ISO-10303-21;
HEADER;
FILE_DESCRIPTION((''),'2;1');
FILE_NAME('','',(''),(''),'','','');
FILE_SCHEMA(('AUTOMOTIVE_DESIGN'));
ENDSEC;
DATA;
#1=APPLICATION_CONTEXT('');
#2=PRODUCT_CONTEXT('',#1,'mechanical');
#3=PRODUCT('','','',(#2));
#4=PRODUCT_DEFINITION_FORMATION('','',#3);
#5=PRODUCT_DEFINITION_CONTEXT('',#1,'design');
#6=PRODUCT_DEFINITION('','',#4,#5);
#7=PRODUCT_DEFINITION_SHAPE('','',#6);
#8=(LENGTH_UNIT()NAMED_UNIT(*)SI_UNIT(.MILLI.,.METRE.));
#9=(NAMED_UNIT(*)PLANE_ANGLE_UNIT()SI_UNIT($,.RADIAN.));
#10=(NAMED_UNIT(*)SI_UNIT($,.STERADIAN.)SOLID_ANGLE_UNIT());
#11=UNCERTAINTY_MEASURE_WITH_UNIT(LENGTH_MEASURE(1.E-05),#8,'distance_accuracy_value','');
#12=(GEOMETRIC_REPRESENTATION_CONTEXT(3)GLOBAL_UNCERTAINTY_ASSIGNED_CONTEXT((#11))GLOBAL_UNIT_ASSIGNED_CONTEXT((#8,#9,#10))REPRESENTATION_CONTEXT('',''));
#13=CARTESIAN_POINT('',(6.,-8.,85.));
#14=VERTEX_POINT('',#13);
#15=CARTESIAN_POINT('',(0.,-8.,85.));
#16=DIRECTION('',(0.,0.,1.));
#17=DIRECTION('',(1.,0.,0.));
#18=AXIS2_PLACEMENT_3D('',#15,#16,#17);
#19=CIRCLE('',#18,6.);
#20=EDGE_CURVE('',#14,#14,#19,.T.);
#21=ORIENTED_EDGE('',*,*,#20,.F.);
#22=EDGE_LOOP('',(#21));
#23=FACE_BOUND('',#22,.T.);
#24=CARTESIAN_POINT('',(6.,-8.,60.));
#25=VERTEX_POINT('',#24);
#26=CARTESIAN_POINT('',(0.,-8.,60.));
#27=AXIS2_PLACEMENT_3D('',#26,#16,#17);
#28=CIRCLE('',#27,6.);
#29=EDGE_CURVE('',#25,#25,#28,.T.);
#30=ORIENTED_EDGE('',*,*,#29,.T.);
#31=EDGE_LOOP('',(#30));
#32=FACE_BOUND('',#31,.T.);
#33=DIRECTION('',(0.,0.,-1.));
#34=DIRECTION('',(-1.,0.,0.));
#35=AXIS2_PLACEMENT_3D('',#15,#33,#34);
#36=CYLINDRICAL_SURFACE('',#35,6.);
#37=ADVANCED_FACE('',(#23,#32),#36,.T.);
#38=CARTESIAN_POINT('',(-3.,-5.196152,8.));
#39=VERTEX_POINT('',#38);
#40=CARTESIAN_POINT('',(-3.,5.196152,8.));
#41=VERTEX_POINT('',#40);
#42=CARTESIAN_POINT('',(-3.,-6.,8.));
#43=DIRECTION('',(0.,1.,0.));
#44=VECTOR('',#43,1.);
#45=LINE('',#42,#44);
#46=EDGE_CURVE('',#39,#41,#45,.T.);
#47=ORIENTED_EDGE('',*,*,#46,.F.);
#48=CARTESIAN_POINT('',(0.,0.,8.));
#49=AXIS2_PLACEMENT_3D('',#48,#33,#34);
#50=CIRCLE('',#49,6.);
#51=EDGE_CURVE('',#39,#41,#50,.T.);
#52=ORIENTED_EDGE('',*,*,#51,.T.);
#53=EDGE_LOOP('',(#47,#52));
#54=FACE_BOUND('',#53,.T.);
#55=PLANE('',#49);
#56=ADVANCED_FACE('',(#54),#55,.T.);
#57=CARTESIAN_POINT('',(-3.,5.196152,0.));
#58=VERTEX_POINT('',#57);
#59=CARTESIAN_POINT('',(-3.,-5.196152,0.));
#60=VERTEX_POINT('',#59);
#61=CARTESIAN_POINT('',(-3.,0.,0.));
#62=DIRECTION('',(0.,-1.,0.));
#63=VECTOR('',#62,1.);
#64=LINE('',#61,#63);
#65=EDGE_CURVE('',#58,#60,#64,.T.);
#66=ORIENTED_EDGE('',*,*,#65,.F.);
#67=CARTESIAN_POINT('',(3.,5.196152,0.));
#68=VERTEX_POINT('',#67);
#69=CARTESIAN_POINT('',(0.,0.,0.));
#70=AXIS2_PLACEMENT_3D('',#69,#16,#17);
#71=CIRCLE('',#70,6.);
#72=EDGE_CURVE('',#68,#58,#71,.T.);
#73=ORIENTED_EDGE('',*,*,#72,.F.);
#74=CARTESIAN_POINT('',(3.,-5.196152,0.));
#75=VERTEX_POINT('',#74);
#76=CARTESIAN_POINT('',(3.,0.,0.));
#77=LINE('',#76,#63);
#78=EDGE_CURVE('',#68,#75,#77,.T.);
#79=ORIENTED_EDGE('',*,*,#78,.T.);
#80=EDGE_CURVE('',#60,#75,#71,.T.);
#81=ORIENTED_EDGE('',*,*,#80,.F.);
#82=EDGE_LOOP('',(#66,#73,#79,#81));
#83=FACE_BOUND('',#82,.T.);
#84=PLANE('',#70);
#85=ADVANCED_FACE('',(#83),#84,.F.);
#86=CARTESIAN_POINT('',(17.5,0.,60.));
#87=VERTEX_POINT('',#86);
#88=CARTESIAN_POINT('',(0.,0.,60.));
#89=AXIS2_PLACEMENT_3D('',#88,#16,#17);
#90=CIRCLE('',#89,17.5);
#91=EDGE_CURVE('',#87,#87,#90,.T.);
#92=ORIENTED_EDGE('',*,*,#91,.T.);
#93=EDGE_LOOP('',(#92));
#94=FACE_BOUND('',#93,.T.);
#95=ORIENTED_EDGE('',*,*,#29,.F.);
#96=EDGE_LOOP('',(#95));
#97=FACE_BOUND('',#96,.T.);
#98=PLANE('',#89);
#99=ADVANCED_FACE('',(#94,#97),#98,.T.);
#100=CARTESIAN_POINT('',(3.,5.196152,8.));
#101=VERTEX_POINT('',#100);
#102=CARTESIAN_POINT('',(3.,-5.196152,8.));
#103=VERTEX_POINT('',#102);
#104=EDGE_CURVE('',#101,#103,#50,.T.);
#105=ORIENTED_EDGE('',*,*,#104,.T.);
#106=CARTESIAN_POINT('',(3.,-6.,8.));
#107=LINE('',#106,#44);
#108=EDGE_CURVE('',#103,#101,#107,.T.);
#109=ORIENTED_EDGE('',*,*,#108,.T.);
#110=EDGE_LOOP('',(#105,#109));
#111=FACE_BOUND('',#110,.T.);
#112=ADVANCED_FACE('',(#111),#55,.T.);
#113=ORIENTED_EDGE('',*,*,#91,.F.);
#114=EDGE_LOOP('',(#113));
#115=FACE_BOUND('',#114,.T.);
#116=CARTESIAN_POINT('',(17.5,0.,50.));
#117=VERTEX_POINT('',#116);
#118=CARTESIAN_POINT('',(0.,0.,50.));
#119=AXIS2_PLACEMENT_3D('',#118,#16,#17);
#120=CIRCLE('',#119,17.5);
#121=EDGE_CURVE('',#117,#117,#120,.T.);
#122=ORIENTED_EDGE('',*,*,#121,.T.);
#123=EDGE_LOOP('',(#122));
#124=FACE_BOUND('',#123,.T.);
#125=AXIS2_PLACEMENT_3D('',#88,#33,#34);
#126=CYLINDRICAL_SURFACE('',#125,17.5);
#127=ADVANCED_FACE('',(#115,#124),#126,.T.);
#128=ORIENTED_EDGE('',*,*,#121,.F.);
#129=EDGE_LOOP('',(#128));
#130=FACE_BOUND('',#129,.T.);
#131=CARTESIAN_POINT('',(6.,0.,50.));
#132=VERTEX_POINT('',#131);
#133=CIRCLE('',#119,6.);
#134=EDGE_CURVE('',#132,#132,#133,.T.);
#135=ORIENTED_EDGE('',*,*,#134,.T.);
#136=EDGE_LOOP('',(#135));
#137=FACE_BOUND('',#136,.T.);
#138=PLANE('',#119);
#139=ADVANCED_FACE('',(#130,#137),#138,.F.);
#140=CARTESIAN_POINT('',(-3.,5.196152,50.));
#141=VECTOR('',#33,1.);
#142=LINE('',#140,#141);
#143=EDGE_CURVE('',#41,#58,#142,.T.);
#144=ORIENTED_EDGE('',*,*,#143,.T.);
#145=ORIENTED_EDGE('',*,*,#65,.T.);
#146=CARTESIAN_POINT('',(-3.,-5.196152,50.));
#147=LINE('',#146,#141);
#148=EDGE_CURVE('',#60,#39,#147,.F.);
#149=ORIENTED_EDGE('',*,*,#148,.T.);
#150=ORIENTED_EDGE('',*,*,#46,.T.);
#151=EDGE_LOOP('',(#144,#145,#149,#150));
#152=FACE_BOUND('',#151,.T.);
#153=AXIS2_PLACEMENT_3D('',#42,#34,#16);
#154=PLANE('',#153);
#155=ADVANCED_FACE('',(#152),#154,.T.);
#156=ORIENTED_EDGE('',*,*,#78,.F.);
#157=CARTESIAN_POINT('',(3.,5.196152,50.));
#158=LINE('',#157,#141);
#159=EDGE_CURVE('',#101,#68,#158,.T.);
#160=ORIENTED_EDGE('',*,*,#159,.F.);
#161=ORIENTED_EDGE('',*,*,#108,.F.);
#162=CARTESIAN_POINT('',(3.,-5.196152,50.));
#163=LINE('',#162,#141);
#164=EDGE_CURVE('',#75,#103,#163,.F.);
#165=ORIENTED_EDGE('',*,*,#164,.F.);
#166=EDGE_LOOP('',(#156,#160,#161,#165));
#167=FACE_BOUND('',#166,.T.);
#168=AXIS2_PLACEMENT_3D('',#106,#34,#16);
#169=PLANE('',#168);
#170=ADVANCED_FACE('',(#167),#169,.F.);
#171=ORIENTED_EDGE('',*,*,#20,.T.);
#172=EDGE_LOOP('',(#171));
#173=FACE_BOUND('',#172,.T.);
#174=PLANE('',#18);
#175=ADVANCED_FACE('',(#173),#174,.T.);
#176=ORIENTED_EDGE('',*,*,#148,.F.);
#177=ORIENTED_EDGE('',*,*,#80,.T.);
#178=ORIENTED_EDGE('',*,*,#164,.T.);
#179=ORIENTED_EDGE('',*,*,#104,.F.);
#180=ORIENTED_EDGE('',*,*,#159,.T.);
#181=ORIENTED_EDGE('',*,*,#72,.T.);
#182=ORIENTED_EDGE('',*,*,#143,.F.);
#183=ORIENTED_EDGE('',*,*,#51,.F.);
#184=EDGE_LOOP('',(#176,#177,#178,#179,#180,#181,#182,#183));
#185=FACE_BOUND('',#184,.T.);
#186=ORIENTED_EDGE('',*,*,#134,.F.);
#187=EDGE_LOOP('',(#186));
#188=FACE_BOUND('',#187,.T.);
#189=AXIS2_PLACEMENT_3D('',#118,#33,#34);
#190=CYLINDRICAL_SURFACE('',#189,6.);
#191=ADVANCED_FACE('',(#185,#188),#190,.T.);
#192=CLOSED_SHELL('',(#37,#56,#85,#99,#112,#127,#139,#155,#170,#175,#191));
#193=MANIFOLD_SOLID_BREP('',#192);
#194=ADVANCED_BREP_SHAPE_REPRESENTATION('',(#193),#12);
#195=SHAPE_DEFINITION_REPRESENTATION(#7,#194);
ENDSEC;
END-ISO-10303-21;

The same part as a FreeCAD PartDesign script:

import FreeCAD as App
import Part
import Sketcher
from FreeCAD import Vector

doc = App.newDocument("Part")
body = doc.addObject("PartDesign::Body", "Body")

sketch1 = body.newObject("Sketcher::SketchObject", "Sketch")
sketch1.AttachmentSupport = (doc.getObject("XY_Plane"), [""])
sketch1.MapMode = "FlatFace"
sketch1.addGeometry(Part.Circle(Vector(0, 0, 0), Vector(0, 0, 1), 6), False)
sketch1.addConstraint([
    Sketcher.Constraint("Coincident", 0, 3, -1, 1),
    Sketcher.Constraint("Diameter", 0, 12.0),
])
pad1 = body.newObject("PartDesign::Pad", "Pad")
pad1.Profile = sketch1
pad1.Length = 50

sketch2 = body.newObject("Sketcher::SketchObject", "Sketch001")
sketch2.AttachmentSupport = (doc.getObject("XY_Plane"), [""])
sketch2.MapMode = "FlatFace"
sketch2.AttachmentOffset = App.Placement(Vector(0, 0, 50), App.Rotation())
sketch2.addGeometry(Part.Circle(Vector(0, 0, 0), Vector(0, 0, 1), 17.5), False)
sketch2.addConstraint([
    Sketcher.Constraint("Coincident", 0, 3, -1, 1),
    Sketcher.Constraint("Diameter", 0, 35.0),
])
pad2 = body.newObject("PartDesign::Pad", "Pad001")
pad2.Profile = sketch2
pad2.Length = 10

sketch3 = body.newObject("Sketcher::SketchObject", "Sketch002")
sketch3.AttachmentSupport = (doc.getObject("XY_Plane"), [""])
sketch3.MapMode = "FlatFace"
sketch3.AttachmentOffset = App.Placement(Vector(0, 0, 60), App.Rotation())
sketch3.addGeometry(Part.Circle(Vector(0, -8, 0), Vector(0, 0, 1), 6), False)
sketch3.addConstraint([
    Sketcher.Constraint("PointOnObject", 0, 3, -2),
    Sketcher.Constraint("Diameter", 0, 12.0),
    Sketcher.Constraint("DistanceY", 0, 3, -1, 1, 8.0),
])
pad3 = body.newObject("PartDesign::Pad", "Pad002")
pad3.Profile = sketch3
pad3.Length = 25

sketch4 = body.newObject("Sketcher::SketchObject", "Sketch003")
sketch4.AttachmentSupport = (doc.getObject("XY_Plane"), [""])
sketch4.MapMode = "FlatFace"
sketch4.addGeometry([
    Part.LineSegment(Vector(28.336, 28.336, 0), Vector(28.336, -28.336, 0)),
    Part.LineSegment(Vector(28.336, -28.336, 0), Vector(-28.336, -28.336, 0)),
    Part.LineSegment(Vector(-28.336, -28.336, 0), Vector(-28.336, 28.336, 0)),
    Part.LineSegment(Vector(-28.336, 28.336, 0), Vector(28.336, 28.336, 0)),
    Part.LineSegment(Vector(-3, -6, 0), Vector(3, -6, 0)),
    Part.LineSegment(Vector(3, -6, 0), Vector(3, 6, 0)),
    Part.LineSegment(Vector(3, 6, 0), Vector(-3, 6, 0)),
    Part.LineSegment(Vector(-3, 6, 0), Vector(-3, -6, 0)),
], False)
sketch4.addConstraint([
    Sketcher.Constraint("Coincident", 0, 2, 1, 1),
    Sketcher.Constraint("Coincident", 1, 2, 2, 1),
    Sketcher.Constraint("Coincident", 2, 2, 3, 1),
    Sketcher.Constraint("Coincident", 3, 2, 0, 1),
    Sketcher.Constraint("Coincident", 4, 2, 5, 1),
    Sketcher.Constraint("Coincident", 5, 2, 6, 1),
    Sketcher.Constraint("Coincident", 6, 2, 7, 1),
    Sketcher.Constraint("Coincident", 7, 2, 4, 1),
    Sketcher.Constraint("Vertical", 0),
    Sketcher.Constraint("Horizontal", 1),
    Sketcher.Constraint("Vertical", 2),
    Sketcher.Constraint("Horizontal", 3),
    Sketcher.Constraint("Horizontal", 4),
    Sketcher.Constraint("Vertical", 5),
    Sketcher.Constraint("Horizontal", 6),
    Sketcher.Constraint("Vertical", 7),
    Sketcher.Constraint("Symmetric", 0, 2, 2, 2, -1, 1),
    Sketcher.Constraint("Symmetric", 4, 2, 6, 2, -1, 1),
    Sketcher.Constraint("Equal", 3, 0),
    Sketcher.Constraint("DistanceX", 4, 1, 4, 2, 6.0),
    Sketcher.Constraint("DistanceY", 5, 1, 5, 2, 12.0),
    Sketcher.Constraint("DistanceX", 1, 2, 1, 1, 56.672),
])
pocket1 = body.newObject("PartDesign::Pocket", "Pocket")
pocket1.Profile = sketch4
pocket1.Length = 8
pocket1.Reversed = True

doc.recompute()
